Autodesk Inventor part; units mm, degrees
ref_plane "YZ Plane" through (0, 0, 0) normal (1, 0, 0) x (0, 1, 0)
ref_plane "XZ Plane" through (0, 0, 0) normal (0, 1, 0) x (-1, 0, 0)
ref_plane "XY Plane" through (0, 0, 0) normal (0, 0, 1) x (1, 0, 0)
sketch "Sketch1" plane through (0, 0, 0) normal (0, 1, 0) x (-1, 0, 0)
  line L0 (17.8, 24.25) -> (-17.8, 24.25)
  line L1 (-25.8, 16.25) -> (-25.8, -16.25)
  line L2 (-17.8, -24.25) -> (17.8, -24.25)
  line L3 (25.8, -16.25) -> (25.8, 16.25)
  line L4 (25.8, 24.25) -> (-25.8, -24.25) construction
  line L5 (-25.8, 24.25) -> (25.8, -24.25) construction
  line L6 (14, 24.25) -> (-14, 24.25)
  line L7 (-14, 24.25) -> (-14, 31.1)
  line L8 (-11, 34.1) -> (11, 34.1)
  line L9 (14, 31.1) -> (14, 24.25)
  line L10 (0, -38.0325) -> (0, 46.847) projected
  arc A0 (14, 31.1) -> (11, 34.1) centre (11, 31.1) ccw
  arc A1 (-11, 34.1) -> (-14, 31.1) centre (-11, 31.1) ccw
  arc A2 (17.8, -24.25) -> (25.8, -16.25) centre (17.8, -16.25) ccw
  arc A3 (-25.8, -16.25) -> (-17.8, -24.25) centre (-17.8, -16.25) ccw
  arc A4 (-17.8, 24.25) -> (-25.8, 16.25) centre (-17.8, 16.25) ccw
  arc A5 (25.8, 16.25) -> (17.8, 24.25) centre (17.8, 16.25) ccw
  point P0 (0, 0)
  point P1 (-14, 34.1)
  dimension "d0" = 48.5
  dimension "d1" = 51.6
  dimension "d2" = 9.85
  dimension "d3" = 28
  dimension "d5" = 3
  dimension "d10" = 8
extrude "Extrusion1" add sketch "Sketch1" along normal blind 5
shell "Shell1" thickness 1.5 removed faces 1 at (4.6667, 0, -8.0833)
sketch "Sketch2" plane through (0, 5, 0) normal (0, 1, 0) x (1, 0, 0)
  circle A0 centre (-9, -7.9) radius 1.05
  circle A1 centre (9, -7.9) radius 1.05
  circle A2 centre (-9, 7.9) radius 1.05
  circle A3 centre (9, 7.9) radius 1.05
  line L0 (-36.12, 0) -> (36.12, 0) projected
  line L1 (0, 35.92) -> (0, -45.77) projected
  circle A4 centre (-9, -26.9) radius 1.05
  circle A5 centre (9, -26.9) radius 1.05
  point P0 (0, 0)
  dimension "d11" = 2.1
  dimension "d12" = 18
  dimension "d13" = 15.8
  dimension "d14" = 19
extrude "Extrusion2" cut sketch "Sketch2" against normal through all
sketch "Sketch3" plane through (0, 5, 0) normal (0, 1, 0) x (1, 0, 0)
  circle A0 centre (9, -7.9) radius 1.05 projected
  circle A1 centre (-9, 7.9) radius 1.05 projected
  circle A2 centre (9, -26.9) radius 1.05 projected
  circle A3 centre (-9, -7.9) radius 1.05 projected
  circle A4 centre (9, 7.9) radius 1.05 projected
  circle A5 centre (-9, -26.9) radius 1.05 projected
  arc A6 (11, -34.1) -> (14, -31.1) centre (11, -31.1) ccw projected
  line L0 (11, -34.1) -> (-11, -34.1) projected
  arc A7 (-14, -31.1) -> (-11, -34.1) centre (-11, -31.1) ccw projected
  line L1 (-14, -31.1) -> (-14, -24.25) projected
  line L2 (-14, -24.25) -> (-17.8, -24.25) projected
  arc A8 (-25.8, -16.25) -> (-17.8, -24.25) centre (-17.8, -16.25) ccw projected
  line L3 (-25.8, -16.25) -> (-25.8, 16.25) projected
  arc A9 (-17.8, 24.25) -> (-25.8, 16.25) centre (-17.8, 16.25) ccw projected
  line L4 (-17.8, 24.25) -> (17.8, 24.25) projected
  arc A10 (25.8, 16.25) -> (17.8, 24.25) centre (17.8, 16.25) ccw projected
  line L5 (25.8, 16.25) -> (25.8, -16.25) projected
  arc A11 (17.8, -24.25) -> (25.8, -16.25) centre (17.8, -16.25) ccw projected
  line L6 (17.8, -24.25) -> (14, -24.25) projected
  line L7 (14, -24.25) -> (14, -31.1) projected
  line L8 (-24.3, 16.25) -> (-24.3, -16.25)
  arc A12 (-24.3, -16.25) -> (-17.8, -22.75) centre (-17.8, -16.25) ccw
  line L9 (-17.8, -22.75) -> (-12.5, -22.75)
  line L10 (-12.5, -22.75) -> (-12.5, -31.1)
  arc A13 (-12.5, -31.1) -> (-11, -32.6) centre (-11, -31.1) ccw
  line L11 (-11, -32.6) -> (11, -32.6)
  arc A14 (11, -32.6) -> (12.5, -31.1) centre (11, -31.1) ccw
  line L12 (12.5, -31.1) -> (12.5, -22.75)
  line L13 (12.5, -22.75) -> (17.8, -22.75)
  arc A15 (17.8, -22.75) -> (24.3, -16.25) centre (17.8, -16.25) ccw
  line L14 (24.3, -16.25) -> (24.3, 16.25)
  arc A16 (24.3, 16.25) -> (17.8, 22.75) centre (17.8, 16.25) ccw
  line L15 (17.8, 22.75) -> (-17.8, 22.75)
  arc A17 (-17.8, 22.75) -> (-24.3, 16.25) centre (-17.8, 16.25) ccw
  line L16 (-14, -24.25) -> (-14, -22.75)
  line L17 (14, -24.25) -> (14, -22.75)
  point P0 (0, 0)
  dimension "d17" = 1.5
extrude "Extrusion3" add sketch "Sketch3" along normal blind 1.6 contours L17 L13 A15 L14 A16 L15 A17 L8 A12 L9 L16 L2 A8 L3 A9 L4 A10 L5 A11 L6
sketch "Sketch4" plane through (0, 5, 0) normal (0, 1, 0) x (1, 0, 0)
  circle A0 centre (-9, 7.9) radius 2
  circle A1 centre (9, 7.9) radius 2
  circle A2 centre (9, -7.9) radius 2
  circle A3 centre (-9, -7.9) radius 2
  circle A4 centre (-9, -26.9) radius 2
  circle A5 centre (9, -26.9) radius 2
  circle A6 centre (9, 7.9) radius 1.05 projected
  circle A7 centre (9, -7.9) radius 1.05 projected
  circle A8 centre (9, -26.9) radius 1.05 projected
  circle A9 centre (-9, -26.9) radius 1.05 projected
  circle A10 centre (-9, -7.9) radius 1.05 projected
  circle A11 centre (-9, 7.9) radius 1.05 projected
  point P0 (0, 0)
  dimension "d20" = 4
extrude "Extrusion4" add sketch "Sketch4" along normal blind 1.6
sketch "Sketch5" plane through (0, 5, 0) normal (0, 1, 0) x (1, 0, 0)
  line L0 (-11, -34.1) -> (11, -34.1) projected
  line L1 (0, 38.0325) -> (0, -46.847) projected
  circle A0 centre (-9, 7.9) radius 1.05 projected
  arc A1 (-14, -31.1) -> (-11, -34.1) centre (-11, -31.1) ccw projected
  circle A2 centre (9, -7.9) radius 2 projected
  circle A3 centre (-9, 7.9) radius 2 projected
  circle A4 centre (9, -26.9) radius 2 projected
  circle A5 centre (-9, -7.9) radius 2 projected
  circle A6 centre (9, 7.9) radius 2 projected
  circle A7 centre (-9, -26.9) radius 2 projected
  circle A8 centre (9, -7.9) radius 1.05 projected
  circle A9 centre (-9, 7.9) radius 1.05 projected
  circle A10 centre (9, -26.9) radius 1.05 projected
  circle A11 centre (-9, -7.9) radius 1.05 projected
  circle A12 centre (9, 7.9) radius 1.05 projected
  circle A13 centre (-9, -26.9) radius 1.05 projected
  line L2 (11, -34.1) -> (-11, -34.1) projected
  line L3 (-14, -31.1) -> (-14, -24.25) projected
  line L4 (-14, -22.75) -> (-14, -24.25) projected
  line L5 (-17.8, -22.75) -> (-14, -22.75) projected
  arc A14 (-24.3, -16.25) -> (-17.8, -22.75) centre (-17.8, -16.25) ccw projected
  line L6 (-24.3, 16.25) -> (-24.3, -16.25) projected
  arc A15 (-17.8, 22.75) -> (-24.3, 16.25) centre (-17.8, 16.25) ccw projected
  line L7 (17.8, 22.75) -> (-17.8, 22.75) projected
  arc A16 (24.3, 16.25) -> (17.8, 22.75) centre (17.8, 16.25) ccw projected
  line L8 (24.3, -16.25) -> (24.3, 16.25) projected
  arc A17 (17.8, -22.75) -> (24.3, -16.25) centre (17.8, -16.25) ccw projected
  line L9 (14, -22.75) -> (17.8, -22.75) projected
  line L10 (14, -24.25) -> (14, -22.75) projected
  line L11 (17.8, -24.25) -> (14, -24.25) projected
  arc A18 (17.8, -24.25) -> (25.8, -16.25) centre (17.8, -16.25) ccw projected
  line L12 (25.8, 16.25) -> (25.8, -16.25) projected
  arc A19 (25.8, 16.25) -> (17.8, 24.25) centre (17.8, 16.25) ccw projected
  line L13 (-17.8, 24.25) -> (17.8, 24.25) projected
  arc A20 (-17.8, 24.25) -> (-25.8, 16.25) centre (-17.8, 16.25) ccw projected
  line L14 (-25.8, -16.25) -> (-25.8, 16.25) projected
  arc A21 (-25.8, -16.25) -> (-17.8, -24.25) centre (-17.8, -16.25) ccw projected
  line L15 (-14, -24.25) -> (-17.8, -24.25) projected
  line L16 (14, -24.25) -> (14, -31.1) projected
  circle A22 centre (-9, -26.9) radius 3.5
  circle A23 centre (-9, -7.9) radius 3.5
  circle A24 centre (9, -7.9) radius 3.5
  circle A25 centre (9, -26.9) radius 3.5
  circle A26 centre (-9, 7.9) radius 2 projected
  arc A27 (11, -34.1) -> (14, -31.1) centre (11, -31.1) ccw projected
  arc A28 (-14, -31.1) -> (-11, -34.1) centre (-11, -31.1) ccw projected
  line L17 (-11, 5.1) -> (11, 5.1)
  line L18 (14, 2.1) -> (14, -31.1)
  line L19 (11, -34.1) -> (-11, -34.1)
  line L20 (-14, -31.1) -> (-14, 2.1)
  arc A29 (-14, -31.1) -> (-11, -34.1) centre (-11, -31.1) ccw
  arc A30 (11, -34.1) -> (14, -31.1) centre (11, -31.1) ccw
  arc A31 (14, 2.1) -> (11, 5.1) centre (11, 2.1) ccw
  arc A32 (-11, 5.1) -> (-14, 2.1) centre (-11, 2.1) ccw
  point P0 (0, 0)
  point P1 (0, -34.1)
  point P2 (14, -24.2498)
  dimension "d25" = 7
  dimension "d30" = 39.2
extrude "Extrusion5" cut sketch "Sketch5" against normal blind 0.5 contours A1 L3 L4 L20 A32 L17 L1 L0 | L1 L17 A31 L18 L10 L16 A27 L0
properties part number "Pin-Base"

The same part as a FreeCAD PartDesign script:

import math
import FreeCAD as App
import Part
import Sketcher
from FreeCAD import Vector


def faces_at(feature, points):
    """Names of the faces that lie closest to the given points."""
    faces = feature.Shape.Faces
    near = lambda p: min(range(len(faces)), key=lambda i: faces[i].distToShape(Part.Vertex(*p))[0])
    return sorted({f"Face{near(p) + 1}" for p in points})

doc = App.newDocument("Part")
body = doc.addObject("PartDesign::Body", "Body")

sketch1 = body.newObject("Sketcher::SketchObject", "Sketch")
sketch1.AttachmentSupport = (doc.getObject("XZ_Plane"), [""])
sketch1.MapMode = "FlatFace"
sketch1.addGeometry(Part.ArcOfCircle(Part.Circle(Vector(-17.8, 16.2, 0), Vector(0, 0, 1), 8), math.radians(90), math.radians(180)), False)
sketch1.addGeometry(Part.LineSegment(Vector(-17.8, 24.2, 0), Vector(-14, 24.2, 0)), False)
sketch1.addGeometry(Part.LineSegment(Vector(-14, 24.2, 0), Vector(-14, 31.1, 0)), False)
sketch1.addGeometry(Part.ArcOfCircle(Part.Circle(Vector(-11, 31.1, 0), Vector(0, 0, 1), 3), math.radians(90), math.radians(180)), False)
sketch1.addGeometry(Part.LineSegment(Vector(-11, 34.1, 0), Vector(11, 34.1, 0)), False)
sketch1.addGeometry(Part.ArcOfCircle(Part.Circle(Vector(11, 31.1, 0), Vector(0, 0, 1), 3), math.radians(0), math.radians(90)), False)
sketch1.addGeometry(Part.LineSegment(Vector(14, 31.1, 0), Vector(14, 24.2, 0)), False)
sketch1.addGeometry(Part.LineSegment(Vector(14, 24.2, 0), Vector(17.8, 24.2, 0)), False)
sketch1.addGeometry(Part.ArcOfCircle(Part.Circle(Vector(17.8, 16.2, 0), Vector(0, 0, 1), 8), math.radians(0), math.radians(90)), False)
sketch1.addGeometry(Part.LineSegment(Vector(25.8, 16.2, 0), Vector(25.8, -16.2, 0)), False)
sketch1.addGeometry(Part.ArcOfCircle(Part.Circle(Vector(17.8, -16.2, 0), Vector(0, 0, 1), 8), math.radians(-90), math.radians(0)), False)
sketch1.addGeometry(Part.LineSegment(Vector(17.8, -24.2, 0), Vector(-17.8, -24.2, 0)), False)
sketch1.addGeometry(Part.ArcOfCircle(Part.Circle(Vector(-17.8, -16.2, 0), Vector(0, 0, 1), 8), math.radians(180), math.radians(270)), False)
sketch1.addGeometry(Part.LineSegment(Vector(-25.8, -16.2, 0), Vector(-25.8, 16.2, 0)), False)
sketch1.addConstraint(Sketcher.Constraint("Tangent", 0, 1, 1, 1))
sketch1.addConstraint(Sketcher.Constraint("Coincident", 1, 2, 2, 1))
sketch1.addConstraint(Sketcher.Constraint("Tangent", 2, 2, 3, 2))
sketch1.addConstraint(Sketcher.Constraint("Tangent", 3, 1, 4, 1))
sketch1.addConstraint(Sketcher.Constraint("Tangent", 4, 2, 5, 2))
sketch1.addConstraint(Sketcher.Constraint("Tangent", 5, 1, 6, 1))
sketch1.addConstraint(Sketcher.Constraint("Coincident", 6, 2, 7, 1))
sketch1.addConstraint(Sketcher.Constraint("Tangent", 7, 2, 8, 2))
sketch1.addConstraint(Sketcher.Constraint("Tangent", 8, 1, 9, 1))
sketch1.addConstraint(Sketcher.Constraint("Tangent", 9, 2, 10, 2))
sketch1.addConstraint(Sketcher.Constraint("Tangent", 10, 1, 11, 1))
sketch1.addConstraint(Sketcher.Constraint("Tangent", 11, 2, 12, 2))
sketch1.addConstraint(Sketcher.Constraint("Tangent", 12, 1, 13, 1))
sketch1.addConstraint(Sketcher.Constraint("Tangent", 13, 2, 0, 2))
sketch1.addConstraint(Sketcher.Constraint("Horizontal", 1))
sketch1.addConstraint(Sketcher.Constraint("Vertical", 2))
sketch1.addConstraint(Sketcher.Constraint("Horizontal", 4))
sketch1.addConstraint(Sketcher.Constraint("Vertical", 6))
sketch1.addConstraint(Sketcher.Constraint("Horizontal", 7))
sketch1.addConstraint(Sketcher.Constraint("Vertical", 9))
sketch1.addConstraint(Sketcher.Constraint("Horizontal", 11))
sketch1.addConstraint(Sketcher.Constraint("Vertical", 13))
sketch1.addConstraint(Sketcher.Constraint("Equal", 3, 5))
sketch1.addConstraint(Sketcher.Constraint("Equal", 0, 8))
sketch1.addConstraint(Sketcher.Constraint("Equal", 8, 10))
sketch1.addConstraint(Sketcher.Constraint("Equal", 10, 12))
sketch1.addConstraint(Sketcher.Constraint("Symmetric", 0, 3, 10, 3, -1, 1))
sketch1.addConstraint(Sketcher.Constraint("Symmetric", 1, 2, 6, 2, -2))
sketch1.addConstraint(Sketcher.Constraint("Radius", 0, 8.0))
sketch1.addConstraint(Sketcher.Constraint("Radius", 3, 3.0))
sketch1.addConstraint(Sketcher.Constraint("DistanceX", 4, 1, 4, 2, 22.0))
sketch1.addConstraint(Sketcher.Constraint("DistanceY", 1, 2, 3, 1, 9.85))
sketch1.addConstraint(Sketcher.Constraint("DistanceX", 1, 1, 1, 2, 3.8))
sketch1.addConstraint(Sketcher.Constraint("DistanceY", 9, 2, 9, 1, 32.5))
pad1 = body.newObject("PartDesign::Pad", "Pad")
pad1.Profile = sketch1
pad1.Length = 5
pad1.Reversed = True
doc.recompute()

thickness = body.newObject("PartDesign::Thickness", "Thickness")
thickness.Base = (pad1, faces_at(pad1, [(4.667, 0, -8.083)]))
thickness.Value = 1.5
thickness.Reversed = True
thickness.Join = "Intersection"

sketch2 = body.newObject("Sketcher::SketchObject", "Sketch001")
sketch2.AttachmentSupport = (doc.getObject("XZ_Plane"), [""])
sketch2.MapMode = "FlatFace"
sketch2.AttachmentOffset = App.Placement(Vector(0, 0, -5), App.Rotation())
sketch2.addGeometry(Part.Circle(Vector(-9, 7.9, 0), Vector(0, 0, 1), 1.1), False)
sketch2.addGeometry(Part.Circle(Vector(9, 7.9, 0), Vector(0, 0, 1), 1.1), False)
sketch2.addGeometry(Part.Circle(Vector(-9, -7.9, 0), Vector(0, 0, 1), 1.1), False)
sketch2.addGeometry(Part.Circle(Vector(9, -7.9, 0), Vector(0, 0, 1), 1.1), False)
sketch2.addGeometry(Part.Circle(Vector(-9, 26.9, 0), Vector(0, 0, 1), 1.1), False)
sketch2.addGeometry(Part.Circle(Vector(9, 26.9, 0), Vector(0, 0, 1), 1.1), False)
sketch2.addConstraint(Sketcher.Constraint("Equal", 0, 1))
sketch2.addConstraint(Sketcher.Constraint("Equal", 1, 2))
sketch2.addConstraint(Sketcher.Constraint("Equal", 2, 3))
sketch2.addConstraint(Sketcher.Constraint("Equal", 3, 4))
sketch2.addConstraint(Sketcher.Constraint("Equal", 4, 5))
sketch2.addConstraint(Sketcher.Constraint("Symmetric", 1, 3, 2, 3, -1, 1))
sketch2.addConstraint(Sketcher.Constraint("Symmetric", 0, 3, 3, 3, -1, 1))
sketch2.addConstraint(Sketcher.Constraint("Symmetric", 0, 3, 1, 3, -2))
sketch2.addConstraint(Sketcher.Constraint("Symmetric", 4, 3, 5, 3, -2))
sketch2.addConstraint(Sketcher.Constraint("Vertical", 2, 3, 4, 3))
sketch2.addConstraint(Sketcher.Constraint("Diameter", 0, 2.1))
sketch2.addConstraint(Sketcher.Constraint("DistanceX", 0, 3, 1, 3, 18.0))
sketch2.addConstraint(Sketcher.Constraint("DistanceY", 0, 3, 4, 3, 19.0))
sketch2.addConstraint(Sketcher.Constraint("DistanceY", 2, 3, 0, 3, 15.8))
pocket1 = body.newObject("PartDesign::Pocket", "Pocket")
pocket1.Profile = sketch2
pocket1.Type = "ThroughAll"
pocket1.Reversed = True

sketch3 = body.newObject("Sketcher::SketchObject", "Sketch002")
sketch3.AttachmentSupport = (doc.getObject("XZ_Plane"), [""])
sketch3.MapMode = "FlatFace"
sketch3.AttachmentOffset = App.Placement(Vector(0, 0, -5), App.Rotation())
sketch3.addGeometry(Part.LineSegment(Vector(14, 22.8, 0), Vector(14, 24.2, 0)), False)
sketch3.addGeometry(Part.LineSegment(Vector(14, 24.2, 0), Vector(17.8, 24.2, 0)), False)
sketch3.addGeometry(Part.ArcOfCircle(Part.Circle(Vector(17.8, 16.2, 0), Vector(0, 0, 1), 8), math.radians(0), math.radians(90)), False)
sketch3.addGeometry(Part.LineSegment(Vector(25.8, 16.2, 0), Vector(25.8, -16.2, 0)), False)
sketch3.addGeometry(Part.ArcOfCircle(Part.Circle(Vector(17.8, -16.2, 0), Vector(0, 0, 1), 8), math.radians(-90), math.radians(0)), False)
sketch3.addGeometry(Part.LineSegment(Vector(17.8, -24.2, 0), Vector(-17.8, -24.2, 0)), False)
sketch3.addGeometry(Part.ArcOfCircle(Part.Circle(Vector(-17.8, -16.2, 0), Vector(0, 0, 1), 8), math.radians(180), math.radians(270)), False)
sketch3.addGeometry(Part.LineSegment(Vector(-25.8, -16.2, 0), Vector(-25.8, 16.2, 0)), False)
sketch3.addGeometry(Part.ArcOfCircle(Part.Circle(Vector(-17.8, 16.2, 0), Vector(0, 0, 1), 8), math.radians(90), math.radians(180)), False)
sketch3.addGeometry(Part.LineSegment(Vector(-17.8, 24.2, 0), Vector(-14, 24.2, 0)), False)
sketch3.addGeometry(Part.LineSegment(Vector(-14, 24.2, 0), Vector(-14, 22.8, 0)), False)
sketch3.addGeometry(Part.LineSegment(Vector(-14, 22.8, 0), Vector(-17.8, 22.8, 0)), False)
sketch3.addGeometry(Part.ArcOfCircle(Part.Circle(Vector(-17.8, 16.2, 0), Vector(0, 0, 1), 6.5), math.radians(90), math.radians(180)), False)
sketch3.addGeometry(Part.LineSegment(Vector(-24.3, 16.2, 0), Vector(-24.3, -16.2, 0)), False)
sketch3.addGeometry(Part.ArcOfCircle(Part.Circle(Vector(-17.8, -16.2, 0), Vector(0, 0, 1), 6.5), math.radians(180), math.radians(270)), False)
sketch3.addGeometry(Part.LineSegment(Vector(-17.8, -22.8, 0), Vector(17.8, -22.8, 0)), False)
sketch3.addGeometry(Part.ArcOfCircle(Part.Circle(Vector(17.8, -16.2, 0), Vector(0, 0, 1), 6.5), math.radians(-90), math.radians(0)), False)
sketch3.addGeometry(Part.LineSegment(Vector(24.3, -16.2, 0), Vector(24.3, 16.2, 0)), False)
sketch3.addGeometry(Part.ArcOfCircle(Part.Circle(Vector(17.8, 16.2, 0), Vector(0, 0, 1), 6.5), math.radians(0), math.radians(90)), False)
sketch3.addGeometry(Part.LineSegment(Vector(17.8, 22.8, 0), Vector(14, 22.8, 0)), False)
sketch3.addConstraint(Sketcher.Constraint("Coincident", 0, 2, 1, 1))
sketch3.addConstraint(Sketcher.Constraint("Tangent", 1, 2, 2, 2))
sketch3.addConstraint(Sketcher.Constraint("Tangent", 2, 1, 3, 1))
sketch3.addConstraint(Sketcher.Constraint("Tangent", 3, 2, 4, 2))
sketch3.addConstraint(Sketcher.Constraint("Tangent", 4, 1, 5, 1))
sketch3.addConstraint(Sketcher.Constraint("Tangent", 5, 2, 6, 2))
sketch3.addConstraint(Sketcher.Constraint("Tangent", 6, 1, 7, 1))
sketch3.addConstraint(Sketcher.Constraint("Tangent", 7, 2, 8, 2))
sketch3.addConstraint(Sketcher.Constraint("Tangent", 8, 1, 9, 1))
sketch3.addConstraint(Sketcher.Constraint("Coincident", 9, 2, 10, 1))
sketch3.addConstraint(Sketcher.Constraint("Coincident", 10, 2, 11, 1))
sketch3.addConstraint(Sketcher.Constraint("Tangent", 11, 2, 12, 1))
sketch3.addConstraint(Sketcher.Constraint("Tangent", 12, 2, 13, 1))
sketch3.addConstraint(Sketcher.Constraint("Tangent", 13, 2, 14, 1))
sketch3.addConstraint(Sketcher.Constraint("Tangent", 14, 2, 15, 1))
sketch3.addConstraint(Sketcher.Constraint("Tangent", 15, 2, 16, 1))
sketch3.addConstraint(Sketcher.Constraint("Tangent", 16, 2, 17, 1))
sketch3.addConstraint(Sketcher.Constraint("Tangent", 17, 2, 18, 1))
sketch3.addConstraint(Sketcher.Constraint("Tangent", 18, 2, 19, 1))
sketch3.addConstraint(Sketcher.Constraint("Coincident", 19, 2, 0, 1))
sketch3.addConstraint(Sketcher.Constraint("Vertical", 0))
sketch3.addConstraint(Sketcher.Constraint("Horizontal", 1))
sketch3.addConstraint(Sketcher.Constraint("Vertical", 3))
sketch3.addConstraint(Sketcher.Constraint("Horizontal", 5))
sketch3.addConstraint(Sketcher.Constraint("Vertical", 7))
sketch3.addConstraint(Sketcher.Constraint("Horizontal", 9))
sketch3.addConstraint(Sketcher.Constraint("Vertical", 10))
sketch3.addConstraint(Sketcher.Constraint("Horizontal", 11))
sketch3.addConstraint(Sketcher.Constraint("Vertical", 13))
sketch3.addConstraint(Sketcher.Constraint("Horizontal", 15))
sketch3.addConstraint(Sketcher.Constraint("Vertical", 17))
sketch3.addConstraint(Sketcher.Constraint("Horizontal", 19))
sketch3.addConstraint(Sketcher.Constraint("Coincident", 12, 3, 8, 3))
sketch3.addConstraint(Sketcher.Constraint("Coincident", 14, 3, 6, 3))
sketch3.addConstraint(Sketcher.Constraint("Coincident", 16, 3, 4, 3))
sketch3.addConstraint(Sketcher.Constraint("Coincident", 18, 3, 2, 3))
sketch3.addConstraint(Sketcher.Constraint("Equal", 2, 4))
sketch3.addConstraint(Sketcher.Constraint("Equal", 4, 6))
sketch3.addConstraint(Sketcher.Constraint("Equal", 6, 8))
sketch3.addConstraint(Sketcher.Constraint("Symmetric", 2, 3, 6, 3, -1, 1))
sketch3.addConstraint(Sketcher.Constraint("Symmetric", 0, 2, 9, 2, -2))
sketch3.addConstraint(Sketcher.Constraint("DistanceY", 0, 1, 0, 2, 1.5))
sketch3.addConstraint(Sketcher.Constraint("Radius", 2, 8.0))
sketch3.addConstraint(Sketcher.Constraint("DistanceX", 1, 1, 1, 2, 3.8))
sketch3.addConstraint(Sketcher.Constraint("DistanceX", 5, 2, 5, 1, 35.6))
sketch3.addConstraint(Sketcher.Constraint("DistanceY", 3, 2, 3, 1, 32.5))
pad2 = body.newObject("PartDesign::Pad", "Pad001")
pad2.Profile = sketch3
pad2.Length = 1.6
pad2.Reversed = True

sketch4 = body.newObject("Sketcher::SketchObject", "Sketch003")
sketch4.AttachmentSupport = (doc.getObject("XZ_Plane"), [""])
sketch4.MapMode = "FlatFace"
sketch4.AttachmentOffset = App.Placement(Vector(0, 0, -5), App.Rotation())
sketch4.addGeometry(Part.Circle(Vector(-9, -7.9, 0), Vector(0, 0, 1), 2), False)
sketch4.addGeometry(Part.Circle(Vector(-9, -7.9, 0), Vector(0, 0, 1), 1.1), False)
sketch4.addGeometry(Part.Circle(Vector(9, -7.9, 0), Vector(0, 0, 1), 2), False)
sketch4.addGeometry(Part.Circle(Vector(9, -7.9, 0), Vector(0, 0, 1), 1.1), False)
sketch4.addGeometry(Part.Circle(Vector(9, 7.9, 0), Vector(0, 0, 1), 2), False)
sketch4.addGeometry(Part.Circle(Vector(9, 7.9, 0), Vector(0, 0, 1), 1.1), False)
sketch4.addGeometry(Part.Circle(Vector(-9, 7.9, 0), Vector(0, 0, 1), 2), False)
sketch4.addGeometry(Part.Circle(Vector(-9, 7.9, 0), Vector(0, 0, 1), 1.1), False)
sketch4.addGeometry(Part.Circle(Vector(-9, 26.9, 0), Vector(0, 0, 1), 2), False)
sketch4.addGeometry(Part.Circle(Vector(-9, 26.9, 0), Vector(0, 0, 1), 1.1), False)
sketch4.addGeometry(Part.Circle(Vector(9, 26.9, 0), Vector(0, 0, 1), 2), False)
sketch4.addGeometry(Part.Circle(Vector(9, 26.9, 0), Vector(0, 0, 1), 1.1), False)
sketch4.addConstraint(Sketcher.Constraint("Coincident", 1, 3, 0, 3))
sketch4.addConstraint(Sketcher.Constraint("Coincident", 3, 3, 2, 3))
sketch4.addConstraint(Sketcher.Constraint("Coincident", 5, 3, 4, 3))
sketch4.addConstraint(Sketcher.Constraint("Coincident", 7, 3, 6, 3))
sketch4.addConstraint(Sketcher.Constraint("Coincident", 9, 3, 8, 3))
sketch4.addConstraint(Sketcher.Constraint("Coincident", 11, 3, 10, 3))
sketch4.addConstraint(Sketcher.Constraint("Equal", 0, 2))
sketch4.addConstraint(Sketcher.Constraint("Equal", 1, 3))
sketch4.addConstraint(Sketcher.Constraint("Equal", 2, 4))
sketch4.addConstraint(Sketcher.Constraint("Equal", 3, 5))
sketch4.addConstraint(Sketcher.Constraint("Equal", 4, 6))
sketch4.addConstraint(Sketcher.Constraint("Equal", 5, 7))
sketch4.addConstraint(Sketcher.Constraint("Equal", 6, 8))
sketch4.addConstraint(Sketcher.Constraint("Equal", 7, 9))
sketch4.addConstraint(Sketcher.Constraint("Equal", 8, 10))
sketch4.addConstraint(Sketcher.Constraint("Equal", 9, 11))
sketch4.addConstraint(Sketcher.Constraint("Symmetric", 0, 3, 4, 3, -1, 1))
sketch4.addConstraint(Sketcher.Constraint("Symmetric", 2, 3, 6, 3, -1, 1))
sketch4.addConstraint(Sketcher.Constraint("Symmetric", 0, 3, 2, 3, -2))
sketch4.addConstraint(Sketcher.Constraint("Symmetric", 8, 3, 10, 3, -2))
sketch4.addConstraint(Sketcher.Constraint("Vertical", 7, 3, 8, 3))
sketch4.addConstraint(Sketcher.Constraint("Diameter", 0, 4.0))
sketch4.addConstraint(Sketcher.Constraint("Diameter", 1, 2.1))
sketch4.addConstraint(Sketcher.Constraint("DistanceX", 0, 3, -1, 1, 9.0))
sketch4.addConstraint(Sketcher.Constraint("DistanceY", 6, 3, 8, 3, 19.0))
sketch4.addConstraint(Sketcher.Constraint("DistanceY", 0, 3, -1, 1, 7.9))
pad3 = body.newObject("PartDesign::Pad", "Pad002")
pad3.Profile = sketch4
pad3.Length = 1.6
pad3.Reversed = True

sketch5 = body.newObject("Sketcher::SketchObject", "Sketch004")
sketch5.AttachmentSupport = (doc.getObject("XZ_Plane"), [""])
sketch5.MapMode = "FlatFace"
sketch5.AttachmentOffset = App.Placement(Vector(0, 0, -5), App.Rotation())
sketch5.addGeometry(Part.ArcOfCircle(Part.Circle(Vector(-11, 31.1, 0), Vector(0, 0, 1), 3), math.radians(90), math.radians(180)), False)
sketch5.addGeometry(Part.LineSegment(Vector(-11, 34.1, 0), Vector(11, 34.1, 0)), False)
sketch5.addGeometry(Part.ArcOfCircle(Part.Circle(Vector(11, 31.1, 0), Vector(0, 0, 1), 3), math.radians(0), math.radians(90)), False)
sketch5.addGeometry(Part.LineSegment(Vector(14, 31.1, 0), Vector(14, -2.1, 0)), False)
sketch5.addGeometry(Part.ArcOfCircle(Part.Circle(Vector(11, -2.1, 0), Vector(0, 0, 1), 3), math.radians(-90), math.radians(0)), False)
sketch5.addGeometry(Part.LineSegment(Vector(11, -5.1, 0), Vector(-11, -5.1, 0)), False)
sketch5.addGeometry(Part.ArcOfCircle(Part.Circle(Vector(-11, -2.1, 0), Vector(0, 0, 1), 3), math.radians(180), math.radians(270)), False)
sketch5.addGeometry(Part.LineSegment(Vector(-14, -2.1, 0), Vector(-14, 31.1, 0)), False)
sketch5.addGeometry(Part.Circle(Vector(-9, 26.9, 0), Vector(0, 0, 1), 3.5), False)
sketch5.addGeometry(Part.Circle(Vector(-9, 7.9, 0), Vector(0, 0, 1), 3.5), False)
sketch5.addGeometry(Part.Circle(Vector(9, 7.9, 0), Vector(0, 0, 1), 3.5), False)
sketch5.addGeometry(Part.Circle(Vector(9, 26.9, 0), Vector(0, 0, 1), 3.5), False)
sketch5.addConstraint(Sketcher.Constraint("Tangent", 0, 1, 1, 1))
sketch5.addConstraint(Sketcher.Constraint("Tangent", 1, 2, 2, 2))
sketch5.addConstraint(Sketcher.Constraint("Tangent", 2, 1, 3, 1))
sketch5.addConstraint(Sketcher.Constraint("Tangent", 3, 2, 4, 2))
sketch5.addConstraint(Sketcher.Constraint("Tangent", 4, 1, 5, 1))
sketch5.addConstraint(Sketcher.Constraint("Tangent", 5, 2, 6, 2))
sketch5.addConstraint(Sketcher.Constraint("Tangent", 6, 1, 7, 1))
sketch5.addConstraint(Sketcher.Constraint("Tangent", 7, 2, 0, 2))
sketch5.addConstraint(Sketcher.Constraint("Horizontal", 1))
sketch5.addConstraint(Sketcher.Constraint("Vertical", 3))
sketch5.addConstraint(Sketcher.Constraint("Horizontal", 5))
sketch5.addConstraint(Sketcher.Constraint("Vertical", 7))
sketch5.addConstraint(Sketcher.Constraint("Equal", 0, 2))
sketch5.addConstraint(Sketcher.Constraint("Equal", 2, 4))
sketch5.addConstraint(Sketcher.Constraint("Equal", 4, 6))
sketch5.addConstraint(Sketcher.Constraint("Equal", 8, 9))
sketch5.addConstraint(Sketcher.Constraint("Equal", 9, 10))
sketch5.addConstraint(Sketcher.Constraint("Equal", 10, 11))
sketch5.addConstraint(Sketcher.Constraint("Symmetric", 9, 3, 10, 3, -2))
sketch5.addConstraint(Sketcher.Constraint("Symmetric", 8, 3, 11, 3, -2))
sketch5.addConstraint(Sketcher.Constraint("Vertical", 8, 3, 9, 3))
sketch5.addConstraint(Sketcher.Constraint("Diameter", 8, 7.0))
sketch5.addConstraint(Sketcher.Constraint("Radius", 0, 3.0))
sketch5.addConstraint(Sketcher.Constraint("DistanceX", 1, 1, 1, 2, 22.0))
sketch5.addConstraint(Sketcher.Constraint("DistanceY", 3, 2, 3, 1, 33.2))
sketch5.addConstraint(Sketcher.Constraint("DistanceX", 0, 3, -1, 1, 11.0))
sketch5.addConstraint(Sketcher.Constraint("DistanceX", 8, 3, -1, 1, 9.0))
sketch5.addConstraint(Sketcher.Constraint("DistanceY", 6, 3, 8, 3, 29.0))
sketch5.addConstraint(Sketcher.Constraint("DistanceY", 6, 3, 9, 3, 10.0))
sketch5.addConstraint(Sketcher.Constraint("DistanceY", -1, 1, 0, 3, 31.1))
pocket2 = body.newObject("PartDesign::Pocket", "Pocket001")
pocket2.Profile = sketch5
pocket2.Length = 0.5
pocket2.Reversed = True

doc.recompute()
